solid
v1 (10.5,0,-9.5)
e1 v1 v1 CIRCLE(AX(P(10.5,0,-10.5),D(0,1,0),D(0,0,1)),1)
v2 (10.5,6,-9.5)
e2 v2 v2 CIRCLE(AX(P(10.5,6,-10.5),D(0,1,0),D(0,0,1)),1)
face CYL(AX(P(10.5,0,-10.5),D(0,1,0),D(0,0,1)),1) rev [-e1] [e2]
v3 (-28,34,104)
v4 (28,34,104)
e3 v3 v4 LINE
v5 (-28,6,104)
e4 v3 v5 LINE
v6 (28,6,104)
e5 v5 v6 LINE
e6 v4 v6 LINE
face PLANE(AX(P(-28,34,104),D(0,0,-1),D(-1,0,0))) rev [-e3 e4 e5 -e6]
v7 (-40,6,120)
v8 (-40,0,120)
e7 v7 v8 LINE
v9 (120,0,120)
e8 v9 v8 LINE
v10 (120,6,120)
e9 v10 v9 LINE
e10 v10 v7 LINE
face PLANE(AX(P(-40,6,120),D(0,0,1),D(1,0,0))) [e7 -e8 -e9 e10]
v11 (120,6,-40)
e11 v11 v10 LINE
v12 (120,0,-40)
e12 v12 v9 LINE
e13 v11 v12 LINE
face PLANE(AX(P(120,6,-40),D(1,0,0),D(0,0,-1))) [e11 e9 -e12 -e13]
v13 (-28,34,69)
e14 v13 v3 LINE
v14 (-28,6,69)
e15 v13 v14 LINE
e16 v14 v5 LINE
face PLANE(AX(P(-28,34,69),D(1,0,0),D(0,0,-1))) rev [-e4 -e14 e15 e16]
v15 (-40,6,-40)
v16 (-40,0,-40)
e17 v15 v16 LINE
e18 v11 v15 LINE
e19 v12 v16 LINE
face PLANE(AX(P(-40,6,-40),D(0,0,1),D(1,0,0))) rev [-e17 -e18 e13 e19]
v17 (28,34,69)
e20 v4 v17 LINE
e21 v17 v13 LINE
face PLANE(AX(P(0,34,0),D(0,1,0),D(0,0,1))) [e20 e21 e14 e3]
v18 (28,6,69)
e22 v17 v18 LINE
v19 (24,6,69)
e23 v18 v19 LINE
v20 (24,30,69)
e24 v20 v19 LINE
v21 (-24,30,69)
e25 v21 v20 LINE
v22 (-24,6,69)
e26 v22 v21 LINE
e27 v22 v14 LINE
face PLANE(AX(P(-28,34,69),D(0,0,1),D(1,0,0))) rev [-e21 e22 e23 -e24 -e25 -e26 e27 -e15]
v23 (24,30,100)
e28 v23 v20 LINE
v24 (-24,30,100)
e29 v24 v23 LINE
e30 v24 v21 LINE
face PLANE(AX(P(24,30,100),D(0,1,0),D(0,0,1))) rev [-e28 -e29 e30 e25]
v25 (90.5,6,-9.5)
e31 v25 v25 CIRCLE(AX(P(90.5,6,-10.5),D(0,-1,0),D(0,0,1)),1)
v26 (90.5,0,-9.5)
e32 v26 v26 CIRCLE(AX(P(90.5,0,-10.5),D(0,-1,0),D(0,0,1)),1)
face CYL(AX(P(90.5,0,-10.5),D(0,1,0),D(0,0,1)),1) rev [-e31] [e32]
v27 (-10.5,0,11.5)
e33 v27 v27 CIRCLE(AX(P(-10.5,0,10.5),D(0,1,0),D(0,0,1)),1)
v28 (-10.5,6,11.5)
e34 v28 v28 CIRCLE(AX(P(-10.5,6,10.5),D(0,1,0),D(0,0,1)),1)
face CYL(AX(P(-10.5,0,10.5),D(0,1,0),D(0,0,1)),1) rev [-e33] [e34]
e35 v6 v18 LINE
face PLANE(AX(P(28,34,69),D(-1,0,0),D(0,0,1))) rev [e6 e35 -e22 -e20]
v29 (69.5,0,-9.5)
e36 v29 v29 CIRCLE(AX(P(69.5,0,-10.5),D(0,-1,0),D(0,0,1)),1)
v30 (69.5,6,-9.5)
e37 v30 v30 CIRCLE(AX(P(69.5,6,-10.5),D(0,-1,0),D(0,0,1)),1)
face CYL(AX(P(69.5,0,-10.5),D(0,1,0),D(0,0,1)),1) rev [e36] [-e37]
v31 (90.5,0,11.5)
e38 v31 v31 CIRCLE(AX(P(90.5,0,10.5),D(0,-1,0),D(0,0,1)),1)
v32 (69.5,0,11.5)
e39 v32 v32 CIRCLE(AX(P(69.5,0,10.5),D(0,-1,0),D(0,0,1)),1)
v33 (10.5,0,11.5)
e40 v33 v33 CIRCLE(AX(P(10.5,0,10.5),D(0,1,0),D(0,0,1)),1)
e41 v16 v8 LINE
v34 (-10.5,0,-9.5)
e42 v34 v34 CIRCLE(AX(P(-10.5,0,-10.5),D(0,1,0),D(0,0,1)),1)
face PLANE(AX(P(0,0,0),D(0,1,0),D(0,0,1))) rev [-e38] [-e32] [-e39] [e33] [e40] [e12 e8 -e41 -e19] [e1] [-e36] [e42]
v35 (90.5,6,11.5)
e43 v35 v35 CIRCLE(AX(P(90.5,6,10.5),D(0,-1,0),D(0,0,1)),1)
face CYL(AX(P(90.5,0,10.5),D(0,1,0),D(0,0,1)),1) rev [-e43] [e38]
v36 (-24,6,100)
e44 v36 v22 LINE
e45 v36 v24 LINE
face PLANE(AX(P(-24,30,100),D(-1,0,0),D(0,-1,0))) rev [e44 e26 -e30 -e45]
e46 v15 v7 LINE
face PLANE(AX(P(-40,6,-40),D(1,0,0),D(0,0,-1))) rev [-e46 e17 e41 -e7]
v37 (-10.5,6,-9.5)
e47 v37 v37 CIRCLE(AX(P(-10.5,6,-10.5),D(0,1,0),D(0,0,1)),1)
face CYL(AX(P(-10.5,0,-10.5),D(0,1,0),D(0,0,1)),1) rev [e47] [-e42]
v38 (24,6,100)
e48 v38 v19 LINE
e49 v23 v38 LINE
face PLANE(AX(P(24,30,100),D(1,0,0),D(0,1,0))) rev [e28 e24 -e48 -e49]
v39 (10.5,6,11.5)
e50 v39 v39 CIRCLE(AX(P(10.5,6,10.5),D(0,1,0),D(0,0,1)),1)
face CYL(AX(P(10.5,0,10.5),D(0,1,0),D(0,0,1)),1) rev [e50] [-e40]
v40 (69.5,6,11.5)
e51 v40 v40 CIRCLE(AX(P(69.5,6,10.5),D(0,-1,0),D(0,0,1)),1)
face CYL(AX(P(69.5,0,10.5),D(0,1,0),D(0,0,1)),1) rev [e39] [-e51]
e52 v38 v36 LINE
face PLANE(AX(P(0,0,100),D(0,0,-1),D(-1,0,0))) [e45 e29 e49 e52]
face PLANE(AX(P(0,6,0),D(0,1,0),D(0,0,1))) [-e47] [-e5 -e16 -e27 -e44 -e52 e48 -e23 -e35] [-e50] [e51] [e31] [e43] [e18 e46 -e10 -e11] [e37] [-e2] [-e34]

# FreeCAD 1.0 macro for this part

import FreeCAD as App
import Part
import Sketcher
from FreeCAD import Vector
Q = App.Units.Quantity


def add_polygon(sketch, points):
    """Adds a closed chain of lines whose ends are joined by coincident constraints."""
    first, n = sketch.GeometryCount, len(points)
    for a, b in zip(points, points[1:] + points[:1]):
        sketch.addGeometry(Part.LineSegment(App.Vector(*a, 0), App.Vector(*b, 0)), False)
    for i in range(n):
        sketch.addConstraint(Sketcher.Constraint("Coincident", first + i, 2, first + (i + 1) % n, 1))

doc = App.newDocument("Part")
body = doc.addObject("PartDesign::Body", "Body")

sketch1 = body.newObject("Sketcher::SketchObject", "Sketch")
sketch1.AttachmentSupport = (doc.getObject("XZ_Plane"), [""])
sketch1.MapMode = "FlatFace"
add_polygon(sketch1, [(-40, -40), (-40, 40), (40, 40), (40, -40)])
sketch1.addConstraint([
    Sketcher.Constraint("Vertical", 0),
    Sketcher.Constraint("Horizontal", 1),
    Sketcher.Constraint("Vertical", 2),
    Sketcher.Constraint("Horizontal", 3),
    Sketcher.Constraint("Symmetric", 0, 2, 2, 2, -1, 1),
    Sketcher.Constraint("Equal", 3, 0),
    Sketcher.Constraint("DistanceX", 1, 1, 1, 2, Q("80 mm")),
])
pad1 = body.newObject("PartDesign::Pad", "Pad")
pad1.Profile = sketch1
pad1.Length = 6
pad1.Reversed = True

sketch2 = body.newObject("Sketcher::SketchObject", "Sketch001")
sketch2.AttachmentSupport = (doc.getObject("XZ_Plane"), [""])
sketch2.MapMode = "FlatFace"
sketch2.AttachmentOffset = App.Placement(Vector(0, 0, -6), App.Rotation())
sketch2.addGeometry([
    Part.Circle(Vector(-10.5, -10.5, 0), Vector(0, 0, 1), 1),
    Part.Circle(Vector(10.5, -10.5, 0), Vector(0, 0, 1), 1),
    Part.Circle(Vector(10.5, 10.5, 0), Vector(0, 0, 1), 1),
    Part.Circle(Vector(-10.5, 10.5, 0), Vector(0, 0, 1), 1),
], False)
sketch2.addConstraint([
    Sketcher.Constraint("Equal", 0, 1),
    Sketcher.Constraint("Equal", 1, 2),
    Sketcher.Constraint("Equal", 2, 3),
    Sketcher.Constraint("Symmetric", 0, 3, 2, 3, -1, 1),
    Sketcher.Constraint("Symmetric", 1, 3, 3, 3, -1, 1),
    Sketcher.Constraint("Symmetric", 0, 3, 1, 3, -2),
    Sketcher.Constraint("Diameter", 0, Q("2 mm")),
    Sketcher.Constraint("DistanceX", 0, 3, 1, 3, Q("21 mm")),
    Sketcher.Constraint("DistanceY", 1, 3, 2, 3, Q("21 mm")),
])
pocket1 = body.newObject("PartDesign::Pocket", "Pocket")
pocket1.Profile = sketch2
pocket1.Type = "ThroughAll"
pocket1.Reversed = True
doc.recompute()

datumplane = body.newObject("PartDesign::Plane", "DatumPlane")
datumplane.AttachmentSupport = (doc.getObject("YZ_Plane"), [""])
datumplane.MapMode = "FlatFace"
datumplane.AttachmentOffset = App.Placement(Vector(0, 0, 40), App.Rotation())
mirrored = body.newObject("PartDesign::Mirrored", "Mirrored")
mirrored.Originals = [pad1, pocket1]
mirrored.MirrorPlane = (datumplane, [""])
body.Tip = mirrored
doc.recompute()

datumplane2 = body.newObject("PartDesign::Plane", "DatumPlane001")
datumplane2.AttachmentSupport = (doc.getObject("XY_Plane"), [""])
datumplane2.MapMode = "FlatFace"
datumplane2.AttachmentOffset = App.Placement(Vector(0, 0, 40), App.Rotation())
mirrored2 = body.newObject("PartDesign::Mirrored", "Mirrored001")
mirrored2.Originals = [pad1]
mirrored2.MirrorPlane = (datumplane2, [""])
body.Tip = mirrored2

sketch3 = body.newObject("Sketcher::SketchObject", "Sketch002")
sketch3.AttachmentSupport = (doc.getObject("YZ_Plane"), [""])
sketch3.MapMode = "FlatFace"
sketch3.AttachmentOffset = App.Placement(Vector(0, 0, 40), App.Rotation())
add_polygon(sketch3, [(6, 120), (0, 120), (0, 40), (6, 40)])
sketch3.addConstraint([
    Sketcher.Constraint("Horizontal", 0),
    Sketcher.Constraint("Vertical", 1),
    Sketcher.Constraint("Horizontal", 2),
    Sketcher.Constraint("Vertical", 3),
    Sketcher.Constraint("PointOnObject", 0, 2, -2),
    Sketcher.Constraint("DistanceX", 0, 2, 0, 1, Q("6 mm")),
    Sketcher.Constraint("DistanceY", 1, 2, 1, 1, Q("80 mm")),
    Sketcher.Constraint("DistanceY", -1, 1, 0, 2, Q("120 mm")),
])
pad2 = body.newObject("PartDesign::Pad", "Pad001")
pad2.Profile = sketch3
pad2.Length = 80

sketch4 = body.newObject("Sketcher::SketchObject", "Sketch003")
sketch4.AttachmentSupport = (doc.getObject("XZ_Plane"), [""])
sketch4.MapMode = "FlatFace"
sketch4.AttachmentOffset = App.Placement(Vector(0, 0, -6), App.Rotation())
add_polygon(sketch4, [(-28, 69), (-28, 104), (28, 104), (28, 69)])
sketch4.addConstraint([
    Sketcher.Constraint("Vertical", 0),
    Sketcher.Constraint("Horizontal", 1),
    Sketcher.Constraint("Vertical", 2),
    Sketcher.Constraint("Horizontal", 3),
    Sketcher.Constraint("DistanceX", 1, 1, 1, 2, Q("56 mm")),
    Sketcher.Constraint("DistanceY", 0, 1, 0, 2, Q("35 mm")),
    Sketcher.Constraint("DistanceX", 0, 2, -1, 1, Q("28 mm")),
    Sketcher.Constraint("DistanceY", -1, 1, 0, 2, Q("104 mm")),
])
pad3 = body.newObject("PartDesign::Pad", "Pad002")
pad3.Profile = sketch4
pad3.Length = 28
pad3.Reversed = True

sketch5 = body.newObject("Sketcher::SketchObject", "Sketch004")
sketch5.AttachmentSupport = (doc.getObject("XY_Plane"), [""])
sketch5.MapMode = "FlatFace"
sketch5.AttachmentOffset = App.Placement(Vector(0, 0, 69), App.Rotation())
add_polygon(sketch5, [(24, 30), (24, 6), (-24, 6), (-24, 30)])
sketch5.addConstraint([
    Sketcher.Constraint("Vertical", 0),
    Sketcher.Constraint("Horizontal", 1),
    Sketcher.Constraint("Vertical", 2),
    Sketcher.Constraint("Horizontal", 3),
    Sketcher.Constraint("DistanceX", 1, 2, 1, 1, Q("48 mm")),
    Sketcher.Constraint("DistanceY", 0, 2, 0, 1, Q("24 mm")),
    Sketcher.Constraint("DistanceX", -1, 1, 0, 2, Q("24 mm")),
    Sketcher.Constraint("DistanceY", -1, 1, 0, 2, Q("6 mm")),
])
pocket2 = body.newObject("PartDesign::Pocket", "Pocket001")
pocket2.Profile = sketch5
pocket2.Length = 31
pocket2.Reversed = True

doc.recompute()
